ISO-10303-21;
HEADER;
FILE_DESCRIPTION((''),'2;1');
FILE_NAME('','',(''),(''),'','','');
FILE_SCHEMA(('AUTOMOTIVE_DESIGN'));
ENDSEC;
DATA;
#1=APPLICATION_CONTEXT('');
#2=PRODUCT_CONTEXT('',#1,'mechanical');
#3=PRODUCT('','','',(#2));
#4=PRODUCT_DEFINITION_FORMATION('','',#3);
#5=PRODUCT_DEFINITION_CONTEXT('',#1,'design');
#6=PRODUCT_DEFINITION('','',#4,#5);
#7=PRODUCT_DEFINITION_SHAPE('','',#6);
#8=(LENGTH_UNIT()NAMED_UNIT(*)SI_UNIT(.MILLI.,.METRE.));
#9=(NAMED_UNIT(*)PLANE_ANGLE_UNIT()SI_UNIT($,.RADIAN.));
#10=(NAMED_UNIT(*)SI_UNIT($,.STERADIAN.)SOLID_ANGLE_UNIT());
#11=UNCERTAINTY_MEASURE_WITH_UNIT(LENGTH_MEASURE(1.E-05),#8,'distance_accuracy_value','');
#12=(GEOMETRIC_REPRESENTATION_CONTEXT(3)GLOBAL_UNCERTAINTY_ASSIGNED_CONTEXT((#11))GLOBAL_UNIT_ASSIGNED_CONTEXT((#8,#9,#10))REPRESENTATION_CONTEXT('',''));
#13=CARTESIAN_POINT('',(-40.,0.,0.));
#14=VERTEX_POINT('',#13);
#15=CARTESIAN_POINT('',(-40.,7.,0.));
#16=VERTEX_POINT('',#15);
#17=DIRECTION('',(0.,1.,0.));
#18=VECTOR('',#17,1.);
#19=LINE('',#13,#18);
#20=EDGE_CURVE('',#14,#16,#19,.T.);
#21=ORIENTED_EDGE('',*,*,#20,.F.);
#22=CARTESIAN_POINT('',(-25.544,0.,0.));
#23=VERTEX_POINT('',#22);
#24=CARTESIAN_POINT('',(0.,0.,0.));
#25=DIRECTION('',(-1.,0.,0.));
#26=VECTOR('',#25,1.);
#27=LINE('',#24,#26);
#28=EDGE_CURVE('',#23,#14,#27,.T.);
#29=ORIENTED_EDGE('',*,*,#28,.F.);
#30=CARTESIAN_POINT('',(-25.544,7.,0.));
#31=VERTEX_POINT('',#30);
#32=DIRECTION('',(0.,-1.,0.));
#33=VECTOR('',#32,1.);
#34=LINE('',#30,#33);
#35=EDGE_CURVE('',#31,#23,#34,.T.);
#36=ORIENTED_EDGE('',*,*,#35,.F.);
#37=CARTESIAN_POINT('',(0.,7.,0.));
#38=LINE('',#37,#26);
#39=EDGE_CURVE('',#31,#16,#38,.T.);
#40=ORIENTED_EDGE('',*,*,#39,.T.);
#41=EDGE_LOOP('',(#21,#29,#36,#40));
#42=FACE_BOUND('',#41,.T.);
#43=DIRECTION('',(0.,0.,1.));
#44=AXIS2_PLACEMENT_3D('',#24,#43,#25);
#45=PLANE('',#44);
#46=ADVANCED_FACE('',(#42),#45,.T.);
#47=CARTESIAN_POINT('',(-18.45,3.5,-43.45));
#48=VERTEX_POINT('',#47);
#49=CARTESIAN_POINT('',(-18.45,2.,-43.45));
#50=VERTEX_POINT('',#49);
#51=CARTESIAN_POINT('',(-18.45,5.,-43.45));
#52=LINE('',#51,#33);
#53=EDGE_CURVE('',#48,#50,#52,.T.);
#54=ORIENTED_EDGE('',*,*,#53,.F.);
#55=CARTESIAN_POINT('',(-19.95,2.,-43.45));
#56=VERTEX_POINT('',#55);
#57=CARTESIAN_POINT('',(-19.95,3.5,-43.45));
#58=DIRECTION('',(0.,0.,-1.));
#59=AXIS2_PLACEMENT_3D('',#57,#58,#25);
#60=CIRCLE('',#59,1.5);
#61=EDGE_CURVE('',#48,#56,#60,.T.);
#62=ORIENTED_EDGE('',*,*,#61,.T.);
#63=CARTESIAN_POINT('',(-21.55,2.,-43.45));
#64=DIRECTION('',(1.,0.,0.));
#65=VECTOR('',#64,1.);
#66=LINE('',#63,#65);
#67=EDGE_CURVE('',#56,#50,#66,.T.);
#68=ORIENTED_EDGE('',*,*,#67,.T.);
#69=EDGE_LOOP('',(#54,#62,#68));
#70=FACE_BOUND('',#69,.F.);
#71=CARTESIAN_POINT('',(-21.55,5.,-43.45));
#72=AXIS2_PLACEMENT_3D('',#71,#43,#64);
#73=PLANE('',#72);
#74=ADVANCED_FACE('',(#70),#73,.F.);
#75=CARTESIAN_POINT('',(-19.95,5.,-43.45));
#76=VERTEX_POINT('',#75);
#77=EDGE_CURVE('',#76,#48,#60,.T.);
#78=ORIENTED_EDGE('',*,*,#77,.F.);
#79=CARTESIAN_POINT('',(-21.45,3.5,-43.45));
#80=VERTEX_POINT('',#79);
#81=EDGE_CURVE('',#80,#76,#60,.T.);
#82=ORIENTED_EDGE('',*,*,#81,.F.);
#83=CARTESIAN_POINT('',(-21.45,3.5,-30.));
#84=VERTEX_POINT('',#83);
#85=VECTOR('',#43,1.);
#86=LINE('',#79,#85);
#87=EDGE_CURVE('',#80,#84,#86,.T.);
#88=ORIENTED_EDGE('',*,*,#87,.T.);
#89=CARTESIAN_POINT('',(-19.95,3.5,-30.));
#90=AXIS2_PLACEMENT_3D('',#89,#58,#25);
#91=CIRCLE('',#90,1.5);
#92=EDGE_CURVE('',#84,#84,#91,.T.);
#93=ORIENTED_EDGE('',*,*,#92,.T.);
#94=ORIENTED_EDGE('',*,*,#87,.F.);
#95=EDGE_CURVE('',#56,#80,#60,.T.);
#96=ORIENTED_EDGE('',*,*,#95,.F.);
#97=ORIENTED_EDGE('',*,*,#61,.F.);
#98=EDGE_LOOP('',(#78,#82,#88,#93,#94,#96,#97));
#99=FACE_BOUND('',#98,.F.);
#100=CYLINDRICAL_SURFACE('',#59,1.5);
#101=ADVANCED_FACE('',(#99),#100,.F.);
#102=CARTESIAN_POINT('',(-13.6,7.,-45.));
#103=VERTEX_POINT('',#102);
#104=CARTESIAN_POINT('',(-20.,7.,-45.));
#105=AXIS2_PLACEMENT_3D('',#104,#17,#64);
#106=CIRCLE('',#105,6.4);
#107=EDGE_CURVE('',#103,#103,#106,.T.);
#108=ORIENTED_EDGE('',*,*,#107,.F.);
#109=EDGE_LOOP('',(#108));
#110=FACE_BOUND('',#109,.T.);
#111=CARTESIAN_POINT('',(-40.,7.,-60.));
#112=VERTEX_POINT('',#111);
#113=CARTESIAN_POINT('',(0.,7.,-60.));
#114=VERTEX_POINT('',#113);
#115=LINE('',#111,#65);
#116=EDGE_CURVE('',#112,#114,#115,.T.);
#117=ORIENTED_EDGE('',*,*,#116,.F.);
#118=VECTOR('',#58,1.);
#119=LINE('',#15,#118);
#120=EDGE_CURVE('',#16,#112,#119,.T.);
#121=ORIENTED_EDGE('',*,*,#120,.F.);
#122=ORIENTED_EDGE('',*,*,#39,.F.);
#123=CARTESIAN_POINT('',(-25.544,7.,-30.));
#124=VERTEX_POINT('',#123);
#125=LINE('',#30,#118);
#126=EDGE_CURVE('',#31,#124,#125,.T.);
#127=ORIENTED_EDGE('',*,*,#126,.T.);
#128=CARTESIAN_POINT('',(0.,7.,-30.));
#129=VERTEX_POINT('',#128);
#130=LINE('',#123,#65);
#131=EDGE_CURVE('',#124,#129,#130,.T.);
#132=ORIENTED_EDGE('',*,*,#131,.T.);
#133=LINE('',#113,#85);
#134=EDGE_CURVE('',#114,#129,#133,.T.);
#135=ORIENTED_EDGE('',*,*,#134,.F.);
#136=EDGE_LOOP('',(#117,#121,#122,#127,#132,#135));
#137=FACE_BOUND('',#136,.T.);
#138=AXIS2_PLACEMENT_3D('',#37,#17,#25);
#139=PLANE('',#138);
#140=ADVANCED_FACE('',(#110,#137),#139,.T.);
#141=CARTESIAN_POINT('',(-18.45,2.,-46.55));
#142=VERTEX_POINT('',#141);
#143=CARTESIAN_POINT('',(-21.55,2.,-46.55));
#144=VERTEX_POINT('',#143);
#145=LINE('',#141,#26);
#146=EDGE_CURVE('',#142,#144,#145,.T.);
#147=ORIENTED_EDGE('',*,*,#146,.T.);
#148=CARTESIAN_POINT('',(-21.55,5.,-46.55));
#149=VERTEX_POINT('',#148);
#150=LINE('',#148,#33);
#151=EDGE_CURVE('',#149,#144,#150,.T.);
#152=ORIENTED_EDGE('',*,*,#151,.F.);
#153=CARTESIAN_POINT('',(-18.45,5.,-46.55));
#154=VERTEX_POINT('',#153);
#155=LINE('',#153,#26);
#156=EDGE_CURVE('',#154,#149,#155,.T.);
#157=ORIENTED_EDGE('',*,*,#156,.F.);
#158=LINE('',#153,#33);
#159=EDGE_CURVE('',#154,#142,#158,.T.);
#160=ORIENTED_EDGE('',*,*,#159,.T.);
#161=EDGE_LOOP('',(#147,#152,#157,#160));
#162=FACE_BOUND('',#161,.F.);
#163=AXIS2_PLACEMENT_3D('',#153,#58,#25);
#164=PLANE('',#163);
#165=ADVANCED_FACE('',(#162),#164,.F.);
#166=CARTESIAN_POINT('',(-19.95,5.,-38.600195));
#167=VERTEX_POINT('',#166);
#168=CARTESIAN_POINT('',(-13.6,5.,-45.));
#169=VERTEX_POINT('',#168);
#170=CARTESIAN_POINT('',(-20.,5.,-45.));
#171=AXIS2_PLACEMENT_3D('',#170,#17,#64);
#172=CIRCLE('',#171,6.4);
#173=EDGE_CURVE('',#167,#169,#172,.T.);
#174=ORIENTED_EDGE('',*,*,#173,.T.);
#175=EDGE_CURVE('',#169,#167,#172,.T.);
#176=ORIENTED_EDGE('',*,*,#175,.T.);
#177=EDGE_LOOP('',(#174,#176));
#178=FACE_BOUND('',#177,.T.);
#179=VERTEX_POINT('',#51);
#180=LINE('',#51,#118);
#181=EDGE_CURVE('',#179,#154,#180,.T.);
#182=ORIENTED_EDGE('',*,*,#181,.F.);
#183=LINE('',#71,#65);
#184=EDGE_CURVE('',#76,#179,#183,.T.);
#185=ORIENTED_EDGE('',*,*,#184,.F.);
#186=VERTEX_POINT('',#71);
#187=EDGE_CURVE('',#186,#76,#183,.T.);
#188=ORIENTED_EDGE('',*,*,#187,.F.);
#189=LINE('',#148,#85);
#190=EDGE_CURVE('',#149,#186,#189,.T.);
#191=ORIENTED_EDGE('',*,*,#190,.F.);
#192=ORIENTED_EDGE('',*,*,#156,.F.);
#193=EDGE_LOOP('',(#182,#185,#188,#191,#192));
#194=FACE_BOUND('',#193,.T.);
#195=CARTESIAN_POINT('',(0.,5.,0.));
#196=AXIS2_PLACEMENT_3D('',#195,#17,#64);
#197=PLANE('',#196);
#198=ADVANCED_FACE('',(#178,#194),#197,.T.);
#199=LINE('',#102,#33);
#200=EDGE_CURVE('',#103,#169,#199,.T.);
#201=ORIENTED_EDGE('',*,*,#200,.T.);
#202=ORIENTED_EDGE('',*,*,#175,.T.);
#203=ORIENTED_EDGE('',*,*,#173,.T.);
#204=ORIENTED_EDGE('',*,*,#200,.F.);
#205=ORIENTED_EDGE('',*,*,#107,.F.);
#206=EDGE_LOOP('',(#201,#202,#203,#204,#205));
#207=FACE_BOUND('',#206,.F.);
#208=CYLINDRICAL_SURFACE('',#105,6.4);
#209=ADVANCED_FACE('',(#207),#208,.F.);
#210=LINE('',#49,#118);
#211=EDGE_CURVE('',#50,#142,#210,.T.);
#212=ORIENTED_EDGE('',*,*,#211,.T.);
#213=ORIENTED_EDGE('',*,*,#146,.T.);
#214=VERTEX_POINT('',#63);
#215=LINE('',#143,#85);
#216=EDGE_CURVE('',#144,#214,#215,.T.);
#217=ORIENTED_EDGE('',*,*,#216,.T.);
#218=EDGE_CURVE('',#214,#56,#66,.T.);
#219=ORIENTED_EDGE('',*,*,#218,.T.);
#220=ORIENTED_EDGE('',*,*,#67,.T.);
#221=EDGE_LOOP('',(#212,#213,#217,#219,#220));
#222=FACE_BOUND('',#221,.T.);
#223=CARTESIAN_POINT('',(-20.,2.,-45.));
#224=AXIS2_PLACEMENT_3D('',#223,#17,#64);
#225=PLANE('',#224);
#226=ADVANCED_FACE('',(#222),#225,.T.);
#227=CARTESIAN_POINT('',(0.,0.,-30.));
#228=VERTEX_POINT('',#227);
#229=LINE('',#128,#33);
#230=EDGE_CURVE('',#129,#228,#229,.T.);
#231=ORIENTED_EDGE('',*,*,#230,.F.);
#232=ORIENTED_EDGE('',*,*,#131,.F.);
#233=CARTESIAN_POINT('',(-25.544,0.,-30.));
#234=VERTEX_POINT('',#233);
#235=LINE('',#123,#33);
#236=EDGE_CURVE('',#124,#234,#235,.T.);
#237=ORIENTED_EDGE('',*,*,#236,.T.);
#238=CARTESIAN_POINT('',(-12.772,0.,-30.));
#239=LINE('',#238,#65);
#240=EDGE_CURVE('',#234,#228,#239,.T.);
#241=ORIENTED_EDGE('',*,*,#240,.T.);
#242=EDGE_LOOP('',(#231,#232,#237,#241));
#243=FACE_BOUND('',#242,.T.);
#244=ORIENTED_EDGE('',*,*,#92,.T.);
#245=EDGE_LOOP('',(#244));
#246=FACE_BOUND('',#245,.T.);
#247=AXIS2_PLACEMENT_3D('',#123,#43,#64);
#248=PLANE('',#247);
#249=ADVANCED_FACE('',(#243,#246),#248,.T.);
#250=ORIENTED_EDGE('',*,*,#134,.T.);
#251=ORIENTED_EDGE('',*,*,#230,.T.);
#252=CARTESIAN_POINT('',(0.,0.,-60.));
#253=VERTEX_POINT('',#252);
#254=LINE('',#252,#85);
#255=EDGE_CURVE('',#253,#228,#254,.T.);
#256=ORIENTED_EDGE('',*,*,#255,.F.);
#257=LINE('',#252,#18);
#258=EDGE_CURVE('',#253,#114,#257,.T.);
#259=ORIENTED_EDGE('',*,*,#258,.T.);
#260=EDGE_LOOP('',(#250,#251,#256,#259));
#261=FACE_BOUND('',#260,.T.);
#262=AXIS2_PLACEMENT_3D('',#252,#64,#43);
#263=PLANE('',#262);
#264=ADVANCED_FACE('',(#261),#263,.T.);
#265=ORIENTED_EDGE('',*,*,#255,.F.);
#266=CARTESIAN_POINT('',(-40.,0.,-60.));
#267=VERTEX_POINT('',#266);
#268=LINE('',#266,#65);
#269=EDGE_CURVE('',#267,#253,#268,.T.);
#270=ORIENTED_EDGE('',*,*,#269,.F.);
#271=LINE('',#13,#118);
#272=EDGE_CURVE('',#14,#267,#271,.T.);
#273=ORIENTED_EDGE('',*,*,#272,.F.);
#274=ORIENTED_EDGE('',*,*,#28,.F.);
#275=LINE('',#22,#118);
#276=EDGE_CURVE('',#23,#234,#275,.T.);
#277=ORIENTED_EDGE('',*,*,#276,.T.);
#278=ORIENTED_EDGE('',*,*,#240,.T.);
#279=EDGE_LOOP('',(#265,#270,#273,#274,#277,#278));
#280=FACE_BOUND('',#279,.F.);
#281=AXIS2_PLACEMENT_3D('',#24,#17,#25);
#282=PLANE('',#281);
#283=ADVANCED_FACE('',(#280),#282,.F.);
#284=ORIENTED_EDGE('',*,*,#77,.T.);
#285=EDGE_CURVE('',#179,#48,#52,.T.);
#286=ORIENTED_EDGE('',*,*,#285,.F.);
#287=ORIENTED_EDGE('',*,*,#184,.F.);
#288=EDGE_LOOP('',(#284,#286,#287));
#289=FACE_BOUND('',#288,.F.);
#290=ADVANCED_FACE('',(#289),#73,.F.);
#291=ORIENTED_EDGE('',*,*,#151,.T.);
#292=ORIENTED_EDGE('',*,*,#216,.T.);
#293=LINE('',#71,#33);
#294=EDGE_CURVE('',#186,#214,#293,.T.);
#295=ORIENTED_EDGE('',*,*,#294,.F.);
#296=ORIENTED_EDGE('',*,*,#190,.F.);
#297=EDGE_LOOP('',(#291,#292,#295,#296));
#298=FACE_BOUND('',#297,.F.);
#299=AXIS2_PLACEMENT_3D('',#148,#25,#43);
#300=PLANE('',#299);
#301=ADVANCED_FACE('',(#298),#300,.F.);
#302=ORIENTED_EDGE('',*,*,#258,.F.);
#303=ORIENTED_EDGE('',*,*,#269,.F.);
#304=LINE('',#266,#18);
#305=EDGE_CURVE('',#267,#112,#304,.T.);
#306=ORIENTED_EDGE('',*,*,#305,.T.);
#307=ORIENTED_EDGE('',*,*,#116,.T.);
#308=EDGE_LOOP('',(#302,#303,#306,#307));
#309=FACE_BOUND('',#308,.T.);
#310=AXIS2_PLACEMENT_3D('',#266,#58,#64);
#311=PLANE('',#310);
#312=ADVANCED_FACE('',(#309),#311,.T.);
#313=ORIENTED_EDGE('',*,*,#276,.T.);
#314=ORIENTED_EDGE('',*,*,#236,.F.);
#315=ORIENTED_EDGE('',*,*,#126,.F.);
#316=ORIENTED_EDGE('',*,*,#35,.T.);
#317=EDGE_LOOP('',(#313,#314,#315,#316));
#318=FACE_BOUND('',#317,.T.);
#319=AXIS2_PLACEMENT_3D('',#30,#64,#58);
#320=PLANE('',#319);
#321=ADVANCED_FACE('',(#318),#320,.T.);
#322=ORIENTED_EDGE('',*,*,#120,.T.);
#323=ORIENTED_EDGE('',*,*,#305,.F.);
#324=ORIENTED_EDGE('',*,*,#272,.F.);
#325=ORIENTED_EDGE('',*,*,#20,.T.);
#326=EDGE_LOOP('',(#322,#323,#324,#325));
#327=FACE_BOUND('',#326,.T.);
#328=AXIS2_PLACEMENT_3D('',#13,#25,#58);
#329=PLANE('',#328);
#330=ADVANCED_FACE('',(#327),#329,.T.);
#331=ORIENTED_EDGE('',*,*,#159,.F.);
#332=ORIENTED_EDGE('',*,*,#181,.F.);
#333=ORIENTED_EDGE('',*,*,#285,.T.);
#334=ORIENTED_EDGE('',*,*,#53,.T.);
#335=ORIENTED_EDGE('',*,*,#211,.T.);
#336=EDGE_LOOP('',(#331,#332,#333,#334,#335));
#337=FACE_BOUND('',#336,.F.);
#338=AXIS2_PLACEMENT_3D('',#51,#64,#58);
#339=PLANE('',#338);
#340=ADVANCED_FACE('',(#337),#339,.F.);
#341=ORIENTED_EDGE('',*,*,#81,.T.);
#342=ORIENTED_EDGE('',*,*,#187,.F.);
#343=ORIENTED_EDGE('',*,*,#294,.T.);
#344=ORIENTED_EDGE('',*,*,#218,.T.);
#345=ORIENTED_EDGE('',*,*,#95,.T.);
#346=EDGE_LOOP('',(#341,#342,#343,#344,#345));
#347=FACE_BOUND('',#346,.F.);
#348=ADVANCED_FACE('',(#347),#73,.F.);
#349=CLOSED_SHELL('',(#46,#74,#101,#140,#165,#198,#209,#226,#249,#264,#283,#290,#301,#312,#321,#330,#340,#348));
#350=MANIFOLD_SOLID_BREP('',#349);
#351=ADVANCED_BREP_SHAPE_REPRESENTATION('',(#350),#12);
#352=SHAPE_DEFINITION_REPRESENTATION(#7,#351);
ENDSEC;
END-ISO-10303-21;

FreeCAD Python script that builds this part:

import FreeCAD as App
import Part
import Sketcher

V = App.Vector
Q = App.Units.Quantity

doc = App.newDocument("Part")
body = doc.addObject("PartDesign::Body", "Body")

# Sketch on XZ plane
sketch1 = body.newObject("Sketcher::SketchObject", "Sketch")
sketch1.AttachmentSupport = (doc.getObject("XZ_Plane"), [""])
sketch1.MapMode = "FlatFace"
sketch1.addGeometry([
    Part.LineSegment(V(-40, 0, 0), V(0, 0, 0)),
    Part.LineSegment(V(0, 0, 0), V(0, -60, 0)),
    Part.LineSegment(V(0, -60, 0), V(-40, -60, 0)),
    Part.LineSegment(V(-40, -60, 0), V(-40, 0, 0)),
], False)
sketch1.addConstraint([
    Sketcher.Constraint("Coincident", 0, 2, 1, 1),
    Sketcher.Constraint("Coincident", 1, 2, 2, 1),
    Sketcher.Constraint("Coincident", 2, 2, 3, 1),
    Sketcher.Constraint("Coincident", 3, 2, 0, 1),
    Sketcher.Constraint("Horizontal", 0),
    Sketcher.Constraint("Vertical", 1),
    Sketcher.Constraint("Horizontal", 2),
    Sketcher.Constraint("Vertical", 3),
    Sketcher.Constraint("Coincident", 0, 2, -1, 1),
    Sketcher.Constraint("DistanceX", 0, 1, 0, 2, Q("40 mm")),
    Sketcher.Constraint("DistanceY", 1, 2, 1, 1, Q("60 mm")),
])
pad1 = body.newObject("PartDesign::Pad", "Pad")
pad1.Profile = sketch1
pad1.Length = 7
pad1.Reversed = True

# Sketch on XZ plane
sketch2 = body.newObject("Sketcher::SketchObject", "Sketch001")
sketch2.AttachmentSupport = (doc.getObject("XZ_Plane"), [""])
sketch2.MapMode = "FlatFace"
sketch2.AttachmentOffset = App.Placement(V(0, 0, -7), App.Rotation())
sketch2.addGeometry([
    Part.LineSegment(V(-25.544, -30, 0), V(-25.544, 0, 0)),
    Part.LineSegment(V(-25.544, 0, 0), V(0, 0, 0)),
    Part.LineSegment(V(0, 0, 0), V(0, -30, 0)),
    Part.LineSegment(V(0, -30, 0), V(-25.544, -30, 0)),
], False)
sketch2.addConstraint([
    Sketcher.Constraint("Coincident", 0, 2, 1, 1),
    Sketcher.Constraint("Coincident", 1, 2, 2, 1),
    Sketcher.Constraint("Coincident", 2, 2, 3, 1),
    Sketcher.Constraint("Coincident", 3, 2, 0, 1),
    Sketcher.Constraint("Vertical", 0),
    Sketcher.Constraint("Horizontal", 1),
    Sketcher.Constraint("Vertical", 2),
    Sketcher.Constraint("Horizontal", 3),
    Sketcher.Constraint("Coincident", 1, 2, -1, 1),
    Sketcher.Constraint("DistanceY", 0, 1, 0, 2, Q("30 mm")),
    Sketcher.Constraint("DistanceX", 1, 1, 1, 2, Q("25.544 mm")),
])
pocket1 = body.newObject("PartDesign::Pocket", "Pocket")
pocket1.Profile = sketch2
pocket1.Type = "ThroughAll"
pocket1.Reversed = True

# Sketch on XZ plane
sketch3 = body.newObject("Sketcher::SketchObject", "Sketch002")
sketch3.AttachmentSupport = (doc.getObject("XZ_Plane"), [""])
sketch3.MapMode = "FlatFace"
sketch3.AttachmentOffset = App.Placement(V(0, 0, -7), App.Rotation())
sketch3.addGeometry(Part.Circle(V(-20, -45, 0), V(0, 0, 1), 6.4), False)
sketch3.addConstraint([
    Sketcher.Constraint("Diameter", 0, Q("12.8 mm")),
    Sketcher.Constraint("DistanceX", 0, 3, -1, 1, Q("20 mm")),
    Sketcher.Constraint("DistanceY", 0, 3, -1, 1, Q("45 mm")),
])
pocket2 = body.newObject("PartDesign::Pocket", "Pocket001")
pocket2.Profile = sketch3
pocket2.Length = 2
pocket2.Reversed = True

# Sketch on XZ plane
sketch4 = body.newObject("Sketcher::SketchObject", "Sketch003")
sketch4.AttachmentSupport = (doc.getObject("XZ_Plane"), [""])
sketch4.MapMode = "FlatFace"
sketch4.AttachmentOffset = App.Placement(V(0, 0, -5), App.Rotation())
sketch4.addGeometry([
    Part.LineSegment(V(-21.55, -46.55, 0), V(-21.55, -43.45, 0)),
    Part.LineSegment(V(-21.55, -43.45, 0), V(-18.45, -43.45, 0)),
    Part.LineSegment(V(-18.45, -43.45, 0), V(-18.45, -46.55, 0)),
    Part.LineSegment(V(-18.45, -46.55, 0), V(-21.55, -46.55, 0)),
], False)
sketch4.addConstraint([
    Sketcher.Constraint("Coincident", 0, 2, 1, 1),
    Sketcher.Constraint("Coincident", 1, 2, 2, 1),
    Sketcher.Constraint("Coincident", 2, 2, 3, 1),
    Sketcher.Constraint("Coincident", 3, 2, 0, 1),
    Sketcher.Constraint("Vertical", 0),
    Sketcher.Constraint("Horizontal", 1),
    Sketcher.Constraint("Vertical", 2),
    Sketcher.Constraint("Horizontal", 3),
    Sketcher.Constraint("Equal", 3, 0),
    Sketcher.Constraint("DistanceX", 1, 1, 1, 2, Q("3.1 mm")),
    Sketcher.Constraint("DistanceX", 0, 2, -1, 1, Q("21.55 mm")),
    Sketcher.Constraint("DistanceY", 0, 2, -1, 1, Q("43.45 mm")),
])
pocket3 = body.newObject("PartDesign::Pocket", "Pocket002")
pocket3.Profile = sketch4
pocket3.Length = 3
pocket3.Reversed = True

# Sketch on XY plane
sketch5 = body.newObject("Sketcher::SketchObject", "Sketch004")
sketch5.AttachmentSupport = (doc.getObject("XY_Plane"), [""])
sketch5.MapMode = "FlatFace"
sketch5.AttachmentOffset = App.Placement(V(0, 0, -43.45), App.Rotation())
sketch5.addGeometry(Part.Circle(V(-19.95, 3.5, 0), V(0, 0, 1), 1.5), False)
sketch5.addConstraint([
    Sketcher.Constraint("Diameter", 0, Q("3 mm")),
    Sketcher.Constraint("DistanceY", -1, 1, 0, 3, Q("3.5 mm")),
    Sketcher.Constraint("DistanceX", 0, 3, -1, 1, Q("19.95 mm")),
])
pocket4 = body.newObject("PartDesign::Pocket", "Pocket003")
pocket4.Profile = sketch5
pocket4.Type = "ThroughAll"
pocket4.Reversed = True

doc.recompute()
